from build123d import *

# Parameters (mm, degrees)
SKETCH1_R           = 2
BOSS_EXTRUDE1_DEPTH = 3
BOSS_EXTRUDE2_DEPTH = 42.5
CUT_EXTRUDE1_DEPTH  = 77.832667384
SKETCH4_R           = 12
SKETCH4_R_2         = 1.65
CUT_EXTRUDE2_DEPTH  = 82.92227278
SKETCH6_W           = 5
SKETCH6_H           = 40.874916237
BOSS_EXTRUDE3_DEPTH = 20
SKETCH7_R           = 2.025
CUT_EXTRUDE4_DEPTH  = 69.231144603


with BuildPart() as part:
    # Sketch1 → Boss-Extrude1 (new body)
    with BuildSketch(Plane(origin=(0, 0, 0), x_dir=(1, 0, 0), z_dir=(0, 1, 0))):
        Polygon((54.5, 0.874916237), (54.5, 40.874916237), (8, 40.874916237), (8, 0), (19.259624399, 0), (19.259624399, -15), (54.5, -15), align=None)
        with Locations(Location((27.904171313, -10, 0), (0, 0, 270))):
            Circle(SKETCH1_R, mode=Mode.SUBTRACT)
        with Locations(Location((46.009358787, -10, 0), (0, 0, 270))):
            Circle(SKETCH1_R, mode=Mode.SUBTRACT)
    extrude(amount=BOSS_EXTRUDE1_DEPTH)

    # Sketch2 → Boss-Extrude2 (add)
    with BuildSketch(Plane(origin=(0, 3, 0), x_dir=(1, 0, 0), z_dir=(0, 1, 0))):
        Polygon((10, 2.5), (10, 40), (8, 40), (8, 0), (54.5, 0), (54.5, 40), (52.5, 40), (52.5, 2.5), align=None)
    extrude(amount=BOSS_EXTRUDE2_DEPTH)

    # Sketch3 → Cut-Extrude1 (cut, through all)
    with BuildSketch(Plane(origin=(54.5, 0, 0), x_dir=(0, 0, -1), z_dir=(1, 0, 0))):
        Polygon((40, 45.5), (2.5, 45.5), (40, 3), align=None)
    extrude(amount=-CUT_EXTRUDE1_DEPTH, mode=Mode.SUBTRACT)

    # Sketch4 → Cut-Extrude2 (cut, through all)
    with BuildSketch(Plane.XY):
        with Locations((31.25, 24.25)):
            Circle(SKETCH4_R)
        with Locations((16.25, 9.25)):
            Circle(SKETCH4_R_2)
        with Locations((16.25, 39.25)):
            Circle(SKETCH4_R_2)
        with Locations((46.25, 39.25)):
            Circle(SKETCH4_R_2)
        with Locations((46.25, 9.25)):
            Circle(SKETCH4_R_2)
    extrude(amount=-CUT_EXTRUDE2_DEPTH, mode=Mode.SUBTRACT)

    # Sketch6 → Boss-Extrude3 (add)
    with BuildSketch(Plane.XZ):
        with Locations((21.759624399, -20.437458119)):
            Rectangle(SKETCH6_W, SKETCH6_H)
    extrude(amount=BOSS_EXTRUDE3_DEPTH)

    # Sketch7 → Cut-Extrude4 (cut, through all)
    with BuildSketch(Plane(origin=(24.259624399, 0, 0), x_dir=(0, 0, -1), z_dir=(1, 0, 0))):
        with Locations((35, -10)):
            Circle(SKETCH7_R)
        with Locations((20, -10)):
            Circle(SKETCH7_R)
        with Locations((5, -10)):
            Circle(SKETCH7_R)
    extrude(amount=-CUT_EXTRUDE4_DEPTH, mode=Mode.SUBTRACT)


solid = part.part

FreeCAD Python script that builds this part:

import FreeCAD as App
import Part
import Sketcher

V = App.Vector

doc = App.newDocument("Part")
body = doc.addObject("PartDesign::Body", "Body")

sketch1 = body.newObject("Sketcher::SketchObject", "Sketch")
sketch1.AttachmentSupport = (doc.getObject("XZ_Plane"), [""])
sketch1.MapMode = "FlatFace"
sketch1.addGeometry(Part.LineSegment(V(54.5, -40.9, 0), V(8, -40.9, 0)), False)
sketch1.addGeometry(Part.LineSegment(V(8, -40.9, 0), V(8, 0, 0)), False)
sketch1.addGeometry(Part.LineSegment(V(8, 0, 0), V(19.3, 0, 0)), False)
sketch1.addGeometry(Part.LineSegment(V(19.3, 0, 0), V(19.3, 15, 0)), False)
sketch1.addGeometry(Part.LineSegment(V(19.3, 15, 0), V(54.5, 15, 0)), False)
sketch1.addGeometry(Part.LineSegment(V(54.5, 15, 0), V(54.5, -40.9, 0)), False)
sketch1.addGeometry(Part.Circle(V(27.9, 10, 0), V(0, 0, 1), 2), False)
sketch1.addGeometry(Part.Circle(V(46, 10, 0), V(0, 0, 1), 2), False)
sketch1.addConstraint(Sketcher.Constraint("Coincident", 0, 2, 1, 1))
sketch1.addConstraint(Sketcher.Constraint("Coincident", 1, 2, 2, 1))
sketch1.addConstraint(Sketcher.Constraint("Coincident", 2, 2, 3, 1))
sketch1.addConstraint(Sketcher.Constraint("Coincident", 3, 2, 4, 1))
sketch1.addConstraint(Sketcher.Constraint("Coincident", 4, 2, 5, 1))
sketch1.addConstraint(Sketcher.Constraint("Coincident", 5, 2, 0, 1))
sketch1.addConstraint(Sketcher.Constraint("Horizontal", 0))
sketch1.addConstraint(Sketcher.Constraint("Vertical", 1))
sketch1.addConstraint(Sketcher.Constraint("Horizontal", 2))
sketch1.addConstraint(Sketcher.Constraint("Vertical", 3))
sketch1.addConstraint(Sketcher.Constraint("Horizontal", 4))
sketch1.addConstraint(Sketcher.Constraint("Vertical", 5))
sketch1.addConstraint(Sketcher.Constraint("Equal", 6, 7))
sketch1.addConstraint(Sketcher.Constraint("PointOnObject", 1, 2, -1))
sketch1.addConstraint(Sketcher.Constraint("Horizontal", 6, 3, 7, 3))
sketch1.addConstraint(Sketcher.Constraint("Diameter", 6, 4.0))
sketch1.addConstraint(Sketcher.Constraint("DistanceY", 3, 1, 3, 2, 15.0))
sketch1.addConstraint(Sketcher.Constraint("DistanceX", 0, 2, 0, 1, 46.5))
sketch1.addConstraint(Sketcher.Constraint("DistanceY", -1, 1, 6, 3, 10.0))
sketch1.addConstraint(Sketcher.Constraint("DistanceX", -1, 1, 0, 2, 8.0))
sketch1.addConstraint(Sketcher.Constraint("DistanceX", 2, 1, 2, 2, 11.259624))
sketch1.addConstraint(Sketcher.Constraint("DistanceY", 1, 1, 1, 2, 40.874916))
sketch1.addConstraint(Sketcher.Constraint("DistanceX", -1, 1, 6, 3, 27.904171))
sketch1.addConstraint(Sketcher.Constraint("DistanceX", -1, 1, 7, 3, 46.009359))
pad1 = body.newObject("PartDesign::Pad", "Pad")
pad1.Profile = sketch1
pad1.Length = 3
pad1.Reversed = True

sketch2 = body.newObject("Sketcher::SketchObject", "Sketch001")
sketch2.AttachmentSupport = (doc.getObject("XZ_Plane"), [""])
sketch2.MapMode = "FlatFace"
sketch2.AttachmentOffset = App.Placement(V(0, 0, -3), App.Rotation())
sketch2.addGeometry(Part.LineSegment(V(10, -2.5, 0), V(10, -40, 0)), False)
sketch2.addGeometry(Part.LineSegment(V(10, -40, 0), V(8, -40, 0)), False)
sketch2.addGeometry(Part.LineSegment(V(8, -40, 0), V(8, 0, 0)), False)
sketch2.addGeometry(Part.LineSegment(V(8, 0, 0), V(54.5, 0, 0)), False)
sketch2.addGeometry(Part.LineSegment(V(54.5, 0, 0), V(54.5, -40, 0)), False)
sketch2.addGeometry(Part.LineSegment(V(54.5, -40, 0), V(52.5, -40, 0)), False)
sketch2.addGeometry(Part.LineSegment(V(52.5, -40, 0), V(52.5, -2.5, 0)), False)
sketch2.addGeometry(Part.LineSegment(V(52.5, -2.5, 0), V(10, -2.5, 0)), False)
sketch2.addConstraint(Sketcher.Constraint("Coincident", 0, 2, 1, 1))
sketch2.addConstraint(Sketcher.Constraint("Coincident", 1, 2, 2, 1))
sketch2.addConstraint(Sketcher.Constraint("Coincident", 2, 2, 3, 1))
sketch2.addConstraint(Sketcher.Constraint("Coincident", 3, 2, 4, 1))
sketch2.addConstraint(Sketcher.Constraint("Coincident", 4, 2, 5, 1))
sketch2.addConstraint(Sketcher.Constraint("Coincident", 5, 2, 6, 1))
sketch2.addConstraint(Sketcher.Constraint("Coincident", 6, 2, 7, 1))
sketch2.addConstraint(Sketcher.Constraint("Coincident", 7, 2, 0, 1))
sketch2.addConstraint(Sketcher.Constraint("Vertical", 0))
sketch2.addConstraint(Sketcher.Constraint("Horizontal", 1))
sketch2.addConstraint(Sketcher.Constraint("Vertical", 2))
sketch2.addConstraint(Sketcher.Constraint("Horizontal", 3))
sketch2.addConstraint(Sketcher.Constraint("Vertical", 4))
sketch2.addConstraint(Sketcher.Constraint("Horizontal", 5))
sketch2.addConstraint(Sketcher.Constraint("Vertical", 6))
sketch2.addConstraint(Sketcher.Constraint("Horizontal", 7))
sketch2.addConstraint(Sketcher.Constraint("PointOnObject", 2, 2, -1))
sketch2.addConstraint(Sketcher.Constraint("Horizontal", 1, 2, 4, 2))
sketch2.addConstraint(Sketcher.Constraint("Equal", 1, 5))
sketch2.addConstraint(Sketcher.Constraint("DistanceX", 1, 2, 1, 1, 2.0))
sketch2.addConstraint(Sketcher.Constraint("DistanceY", 2, 1, 2, 2, 40.0))
sketch2.addConstraint(Sketcher.Constraint("DistanceX", 3, 1, 3, 2, 46.5))
sketch2.addConstraint(Sketcher.Constraint("DistanceY", 0, 2, 0, 1, 37.5))
sketch2.addConstraint(Sketcher.Constraint("DistanceX", -1, 1, 0, 2, 10.0))
pad2 = body.newObject("PartDesign::Pad", "Pad001")
pad2.Profile = sketch2
pad2.Length = 42.5
pad2.Reversed = True

sketch3 = body.newObject("Sketcher::SketchObject", "Sketch002")
sketch3.AttachmentSupport = (doc.getObject("YZ_Plane"), [""])
sketch3.MapMode = "FlatFace"
sketch3.AttachmentOffset = App.Placement(V(0, 0, 54.5), App.Rotation())
sketch3.addGeometry(Part.LineSegment(V(46, -40, 0), V(46, -2, 0)), False)
sketch3.addGeometry(Part.LineSegment(V(46, -2, 0), V(3, -40, 0)), False)
sketch3.addGeometry(Part.LineSegment(V(3, -40, 0), V(46, -40, 0)), False)
sketch3.addConstraint(Sketcher.Constraint("Coincident", 0, 2, 1, 1))
sketch3.addConstraint(Sketcher.Constraint("Coincident", 1, 2, 2, 1))
sketch3.addConstraint(Sketcher.Constraint("Coincident", 2, 2, 0, 1))
sketch3.addConstraint(Sketcher.Constraint("Vertical", 0))
sketch3.addConstraint(Sketcher.Constraint("Horizontal", 2))
sketch3.addConstraint(Sketcher.Constraint("DistanceX", 2, 1, 2, 2, 42.5))
sketch3.addConstraint(Sketcher.Constraint("DistanceY", 0, 1, 0, 2, 37.5))
sketch3.addConstraint(Sketcher.Constraint("DistanceX", -1, 1, 1, 2, 3.0))
sketch3.addConstraint(Sketcher.Constraint("DistanceY", 1, 2, -1, 1, 40.0))
pocket1 = body.newObject("PartDesign::Pocket", "Pocket")
pocket1.Profile = sketch3
pocket1.Type = "ThroughAll"

sketch4 = body.newObject("Sketcher::SketchObject", "Sketch003")
sketch4.AttachmentSupport = (doc.getObject("XY_Plane"), [""])
sketch4.MapMode = "FlatFace"
sketch4.addGeometry(Part.Circle(V(31.2, 24.2, 0), V(0, 0, 1), 12), False)
sketch4.addGeometry(Part.Circle(V(16.2, 9.2, 0), V(0, 0, 1), 1.6), False)
sketch4.addGeometry(Part.Circle(V(16.2, 39.2, 0), V(0, 0, 1), 1.6), False)
sketch4.addGeometry(Part.Circle(V(46.2, 39.2, 0), V(0, 0, 1), 1.6), False)
sketch4.addGeometry(Part.Circle(V(46.2, 9.2, 0), V(0, 0, 1), 1.6), False)
sketch4.addConstraint(Sketcher.Constraint("Equal", 1, 2))
sketch4.addConstraint(Sketcher.Constraint("Equal", 2, 3))
sketch4.addConstraint(Sketcher.Constraint("Equal", 3, 4))
sketch4.addConstraint(Sketcher.Constraint("Horizontal", 2, 3, 3, 3))
sketch4.addConstraint(Sketcher.Constraint("Horizontal", 1, 3, 4, 3))
sketch4.addConstraint(Sketcher.Constraint("Vertical", 1, 3, 2, 3))
sketch4.addConstraint(Sketcher.Constraint("Vertical", 3, 3, 4, 3))
sketch4.addConstraint(Sketcher.Constraint("Diameter", 0, 24.0))
sketch4.addConstraint(Sketcher.Constraint("Diameter", 1, 3.3))
sketch4.addConstraint(Sketcher.Constraint("DistanceX", 1, 3, 0, 3, 15.0))
sketch4.addConstraint(Sketcher.Constraint("DistanceY", 1, 3, 0, 3, 15.0))
sketch4.addConstraint(Sketcher.Constraint("DistanceY", 0, 3, 2, 3, 15.0))
sketch4.addConstraint(Sketcher.Constraint("DistanceX", 0, 3, 3, 3, 15.0))
sketch4.addConstraint(Sketcher.Constraint("DistanceX", -1, 1, 0, 3, 31.25))
sketch4.addConstraint(Sketcher.Constraint("DistanceY", -1, 1, 0, 3, 24.25))
pocket2 = body.newObject("PartDesign::Pocket", "Pocket001")
pocket2.Profile = sketch4
pocket2.Type = "ThroughAll"

sketch5 = body.newObject("Sketcher::SketchObject", "Sketch004")
sketch5.AttachmentSupport = (doc.getObject("XZ_Plane"), [""])
sketch5.MapMode = "FlatFace"
sketch5.addGeometry(Part.LineSegment(V(19, 0, 0), V(19, -41, 0)), False)
sketch5.addGeometry(Part.LineSegment(V(19, -41, 0), V(24, -41, 0)), False)
sketch5.addGeometry(Part.LineSegment(V(24, -41, 0), V(24, 0, 0)), False)
sketch5.addGeometry(Part.LineSegment(V(24, 0, 0), V(19, 0, 0)), False)
sketch5.addConstraint(Sketcher.Constraint("Coincident", 0, 2, 1, 1))
sketch5.addConstraint(Sketcher.Constraint("Coincident", 1, 2, 2, 1))
sketch5.addConstraint(Sketcher.Constraint("Coincident", 2, 2, 3, 1))
sketch5.addConstraint(Sketcher.Constraint("Coincident", 3, 2, 0, 1))
sketch5.addConstraint(Sketcher.Constraint("Vertical", 0))
sketch5.addConstraint(Sketcher.Constraint("Horizontal", 1))
sketch5.addConstraint(Sketcher.Constraint("Vertical", 2))
sketch5.addConstraint(Sketcher.Constraint("Horizontal", 3))
sketch5.addConstraint(Sketcher.Constraint("PointOnObject", 2, 2, -1))
sketch5.addConstraint(Sketcher.Constraint("DistanceX", 1, 1, 1, 2, 5.0))
sketch5.addConstraint(Sketcher.Constraint("DistanceY", 0, 2, 0, 1, 40.874916))
sketch5.addConstraint(Sketcher.Constraint("DistanceX", -1, 1, 0, 2, 19.259624))
pad3 = body.newObject("PartDesign::Pad", "Pad002")
pad3.Profile = sketch5
pad3.Length = 20

sketch6 = body.newObject("Sketcher::SketchObject", "Sketch005")
sketch6.AttachmentSupport = (doc.getObject("YZ_Plane"), [""])
sketch6.MapMode = "FlatFace"
sketch6.AttachmentOffset = App.Placement(V(0, 0, 24.259624), App.Rotation())
sketch6.addGeometry(Part.Circle(V(-10, -35, 0), V(0, 0, 1), 2), False)
sketch6.addGeometry(Part.Circle(V(-10, -20, 0), V(0, 0, 1), 2), False)
sketch6.addGeometry(Part.Circle(V(-10, -5, 0), V(0, 0, 1), 2), False)
sketch6.addConstraint(Sketcher.Constraint("Equal", 0, 1))
sketch6.addConstraint(Sketcher.Constraint("Equal", 1, 2))
sketch6.addConstraint(Sketcher.Constraint("Vertical", 0, 3, 1, 3))
sketch6.addConstraint(Sketcher.Constraint("Vertical", 1, 3, 2, 3))
sketch6.addConstraint(Sketcher.Constraint("Diameter", 0, 4.05))
sketch6.addConstraint(Sketcher.Constraint("DistanceX", 0, 3, -1, 1, 10.0))
sketch6.addConstraint(Sketcher.Constraint("DistanceY", 0, 3, -1, 1, 35.0))
sketch6.addConstraint(Sketcher.Constraint("DistanceY", 1, 3, -1, 1, 20.0))
sketch6.addConstraint(Sketcher.Constraint("DistanceY", 2, 3, -1, 1, 5.0))
pocket3 = body.newObject("PartDesign::Pocket", "Pocket002")
pocket3.Profile = sketch6
pocket3.Type = "ThroughAll"

doc.recompute()
